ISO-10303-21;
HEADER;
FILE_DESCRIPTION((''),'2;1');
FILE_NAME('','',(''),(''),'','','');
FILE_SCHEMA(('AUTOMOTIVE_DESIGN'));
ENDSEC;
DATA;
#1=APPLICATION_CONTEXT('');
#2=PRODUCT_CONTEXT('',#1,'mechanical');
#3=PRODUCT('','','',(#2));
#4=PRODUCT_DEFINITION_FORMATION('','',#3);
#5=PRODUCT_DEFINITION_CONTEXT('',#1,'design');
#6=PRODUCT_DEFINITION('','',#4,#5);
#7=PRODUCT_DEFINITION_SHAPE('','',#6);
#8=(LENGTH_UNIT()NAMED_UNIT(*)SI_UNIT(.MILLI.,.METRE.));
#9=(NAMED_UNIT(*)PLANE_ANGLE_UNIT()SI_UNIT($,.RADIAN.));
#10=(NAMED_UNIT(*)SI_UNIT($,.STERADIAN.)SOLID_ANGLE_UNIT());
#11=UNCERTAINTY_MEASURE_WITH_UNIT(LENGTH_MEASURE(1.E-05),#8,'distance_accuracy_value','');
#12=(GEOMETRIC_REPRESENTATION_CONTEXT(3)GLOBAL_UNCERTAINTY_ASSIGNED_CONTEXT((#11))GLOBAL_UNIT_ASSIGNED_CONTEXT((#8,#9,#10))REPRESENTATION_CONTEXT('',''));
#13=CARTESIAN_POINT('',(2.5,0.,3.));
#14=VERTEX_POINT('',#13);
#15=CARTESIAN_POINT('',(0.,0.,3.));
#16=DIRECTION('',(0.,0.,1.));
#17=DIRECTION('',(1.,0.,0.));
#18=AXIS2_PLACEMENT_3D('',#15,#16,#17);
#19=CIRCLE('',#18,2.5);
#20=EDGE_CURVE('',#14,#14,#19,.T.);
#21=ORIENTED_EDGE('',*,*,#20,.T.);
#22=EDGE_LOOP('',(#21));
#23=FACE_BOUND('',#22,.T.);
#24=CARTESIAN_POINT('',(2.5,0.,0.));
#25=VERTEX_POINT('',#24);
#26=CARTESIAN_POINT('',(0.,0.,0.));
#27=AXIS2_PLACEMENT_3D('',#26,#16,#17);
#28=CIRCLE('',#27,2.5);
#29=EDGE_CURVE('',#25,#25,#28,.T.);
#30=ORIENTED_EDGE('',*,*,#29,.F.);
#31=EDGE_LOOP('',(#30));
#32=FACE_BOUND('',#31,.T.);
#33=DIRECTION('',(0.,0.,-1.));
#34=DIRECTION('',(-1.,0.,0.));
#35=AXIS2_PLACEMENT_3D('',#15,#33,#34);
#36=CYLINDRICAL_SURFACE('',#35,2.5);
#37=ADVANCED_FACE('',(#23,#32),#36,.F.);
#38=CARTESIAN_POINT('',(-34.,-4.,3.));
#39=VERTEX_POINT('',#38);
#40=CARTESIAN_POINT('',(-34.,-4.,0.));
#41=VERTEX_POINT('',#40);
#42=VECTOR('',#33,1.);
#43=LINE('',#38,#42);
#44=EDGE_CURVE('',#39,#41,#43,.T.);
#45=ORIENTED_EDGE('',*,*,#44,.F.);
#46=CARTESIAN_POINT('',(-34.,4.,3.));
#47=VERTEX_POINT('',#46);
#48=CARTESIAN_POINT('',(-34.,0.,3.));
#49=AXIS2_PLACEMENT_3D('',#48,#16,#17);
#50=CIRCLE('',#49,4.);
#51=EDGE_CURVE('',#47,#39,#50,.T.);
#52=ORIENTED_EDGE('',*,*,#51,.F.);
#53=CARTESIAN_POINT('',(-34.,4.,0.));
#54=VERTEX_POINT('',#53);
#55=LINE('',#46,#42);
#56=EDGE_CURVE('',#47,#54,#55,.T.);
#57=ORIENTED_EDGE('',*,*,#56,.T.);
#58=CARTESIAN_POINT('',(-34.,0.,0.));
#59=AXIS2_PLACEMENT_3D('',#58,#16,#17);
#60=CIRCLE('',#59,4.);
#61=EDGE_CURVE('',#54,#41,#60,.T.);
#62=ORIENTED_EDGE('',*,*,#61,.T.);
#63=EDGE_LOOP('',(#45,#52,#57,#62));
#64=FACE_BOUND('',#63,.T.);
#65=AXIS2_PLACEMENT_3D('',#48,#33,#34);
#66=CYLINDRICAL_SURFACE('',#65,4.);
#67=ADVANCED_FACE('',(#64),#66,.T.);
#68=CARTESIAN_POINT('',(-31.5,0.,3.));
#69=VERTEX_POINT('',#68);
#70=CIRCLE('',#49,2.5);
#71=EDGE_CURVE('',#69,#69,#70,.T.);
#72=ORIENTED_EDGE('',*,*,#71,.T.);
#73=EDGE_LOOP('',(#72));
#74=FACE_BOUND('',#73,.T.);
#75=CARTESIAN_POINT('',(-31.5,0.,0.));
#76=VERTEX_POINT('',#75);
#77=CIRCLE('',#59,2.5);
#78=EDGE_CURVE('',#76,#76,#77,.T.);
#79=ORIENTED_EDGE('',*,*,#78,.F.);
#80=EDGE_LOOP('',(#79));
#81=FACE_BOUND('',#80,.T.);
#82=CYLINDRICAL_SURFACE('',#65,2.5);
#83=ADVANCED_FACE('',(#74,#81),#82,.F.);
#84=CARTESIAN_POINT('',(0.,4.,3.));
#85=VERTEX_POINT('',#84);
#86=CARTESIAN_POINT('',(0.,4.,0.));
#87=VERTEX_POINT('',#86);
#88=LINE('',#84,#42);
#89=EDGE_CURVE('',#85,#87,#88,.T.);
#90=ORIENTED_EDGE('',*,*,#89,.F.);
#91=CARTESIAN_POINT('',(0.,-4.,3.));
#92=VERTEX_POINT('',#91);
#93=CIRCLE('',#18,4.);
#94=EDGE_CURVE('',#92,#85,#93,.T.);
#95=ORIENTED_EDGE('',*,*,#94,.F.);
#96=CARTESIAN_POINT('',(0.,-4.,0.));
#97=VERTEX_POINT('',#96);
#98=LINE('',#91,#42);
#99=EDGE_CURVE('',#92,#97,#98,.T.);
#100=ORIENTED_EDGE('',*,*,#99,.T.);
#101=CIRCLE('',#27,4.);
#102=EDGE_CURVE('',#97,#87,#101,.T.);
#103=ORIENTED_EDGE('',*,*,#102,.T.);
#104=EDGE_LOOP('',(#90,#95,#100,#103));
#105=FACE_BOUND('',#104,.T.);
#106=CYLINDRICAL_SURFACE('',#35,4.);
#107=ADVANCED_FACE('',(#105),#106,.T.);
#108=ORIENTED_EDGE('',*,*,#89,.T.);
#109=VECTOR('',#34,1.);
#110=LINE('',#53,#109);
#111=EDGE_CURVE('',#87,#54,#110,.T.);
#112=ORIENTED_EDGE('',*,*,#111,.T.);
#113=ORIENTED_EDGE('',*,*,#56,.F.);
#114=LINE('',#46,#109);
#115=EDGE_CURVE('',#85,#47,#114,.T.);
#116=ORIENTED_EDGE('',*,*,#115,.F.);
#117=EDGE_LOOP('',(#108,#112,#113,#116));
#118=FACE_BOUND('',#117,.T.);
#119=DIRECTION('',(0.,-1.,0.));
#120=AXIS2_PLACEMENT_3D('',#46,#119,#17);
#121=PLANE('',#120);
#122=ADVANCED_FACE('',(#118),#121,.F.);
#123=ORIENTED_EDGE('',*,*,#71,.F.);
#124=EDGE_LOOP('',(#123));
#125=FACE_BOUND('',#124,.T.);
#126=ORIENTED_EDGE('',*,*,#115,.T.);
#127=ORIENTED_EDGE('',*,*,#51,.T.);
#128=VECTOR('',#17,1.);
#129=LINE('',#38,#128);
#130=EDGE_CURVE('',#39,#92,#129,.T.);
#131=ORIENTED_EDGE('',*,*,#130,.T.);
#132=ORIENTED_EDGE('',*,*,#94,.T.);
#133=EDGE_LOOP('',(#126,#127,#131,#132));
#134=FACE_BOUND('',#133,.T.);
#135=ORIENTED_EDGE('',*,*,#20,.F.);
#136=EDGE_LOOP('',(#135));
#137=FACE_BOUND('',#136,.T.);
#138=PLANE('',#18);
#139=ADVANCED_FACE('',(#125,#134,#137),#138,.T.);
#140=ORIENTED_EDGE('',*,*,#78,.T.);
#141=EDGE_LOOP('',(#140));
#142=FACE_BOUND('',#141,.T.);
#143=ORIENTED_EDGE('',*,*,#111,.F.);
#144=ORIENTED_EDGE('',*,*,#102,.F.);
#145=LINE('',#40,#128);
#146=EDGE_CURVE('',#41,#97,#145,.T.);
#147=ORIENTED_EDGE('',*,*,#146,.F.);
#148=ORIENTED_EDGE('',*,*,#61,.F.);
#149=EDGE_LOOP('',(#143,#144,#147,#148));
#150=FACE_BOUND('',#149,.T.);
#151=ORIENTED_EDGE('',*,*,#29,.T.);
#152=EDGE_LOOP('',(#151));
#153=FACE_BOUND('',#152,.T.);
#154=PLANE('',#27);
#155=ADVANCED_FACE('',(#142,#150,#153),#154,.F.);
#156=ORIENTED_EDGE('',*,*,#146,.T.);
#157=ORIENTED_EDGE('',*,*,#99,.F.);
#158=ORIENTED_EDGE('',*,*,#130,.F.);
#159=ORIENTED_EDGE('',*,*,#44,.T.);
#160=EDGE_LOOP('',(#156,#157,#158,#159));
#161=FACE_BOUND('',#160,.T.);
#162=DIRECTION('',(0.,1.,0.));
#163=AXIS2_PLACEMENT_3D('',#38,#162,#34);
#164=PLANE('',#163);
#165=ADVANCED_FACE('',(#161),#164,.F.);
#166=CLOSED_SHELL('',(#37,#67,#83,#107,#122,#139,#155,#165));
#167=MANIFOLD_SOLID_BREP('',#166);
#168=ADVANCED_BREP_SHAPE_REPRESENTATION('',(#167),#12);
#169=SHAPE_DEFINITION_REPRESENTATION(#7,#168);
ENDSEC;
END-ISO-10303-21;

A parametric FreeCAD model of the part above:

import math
import FreeCAD as App
import Part
import Sketcher

V = App.Vector
Q = App.Units.Quantity

doc = App.newDocument("Part")
body = doc.addObject("PartDesign::Body", "Body")

# Sketch on XY plane
sketch1 = body.newObject("Sketcher::SketchObject", "Sketch")
sketch1.AttachmentSupport = (doc.getObject("XY_Plane"), [""])
sketch1.MapMode = "FlatFace"
sketch1.addGeometry([
    Part.LineSegment(V(0, 4, 0), V(-34, 4, 0)),  # 0
    Part.ArcOfCircle(Part.Circle(V(-34, 0, 0), V(0, 0, 1), 4), math.radians(90), math.radians(270)),  # 1
    Part.LineSegment(V(-34, -4, 0), V(0, -4, 0)),  # 2
    Part.ArcOfCircle(Part.Circle(V(0, 0, 0), V(0, 0, 1), 4), math.radians(-90), math.radians(90)),  # 3
    Part.Circle(V(0, 0, 0), V(0, 0, 1), 2.5),  # 4
    Part.Circle(V(-34, 0, 0), V(0, 0, 1), 2.5),  # 5
], False)
sketch1.addConstraint([
    Sketcher.Constraint("Tangent", 0, 2, 1, 1),
    Sketcher.Constraint("Tangent", 1, 2, 2, 1),
    Sketcher.Constraint("Tangent", 2, 2, 3, 1),
    Sketcher.Constraint("Tangent", 3, 2, 0, 1),
    Sketcher.Constraint("Horizontal", 0),
    Sketcher.Constraint("Horizontal", 2),
    Sketcher.Constraint("Coincident", 3, 3, -1, 1),
    Sketcher.Constraint("Coincident", 4, 3, -1, 1),
    Sketcher.Constraint("Coincident", 5, 3, 1, 3),
    Sketcher.Constraint("Equal", 4, 5),
    Sketcher.Constraint("Diameter", 4, Q("5 mm")),
    Sketcher.Constraint("Radius", 1, Q("4 mm")),
    Sketcher.Constraint("DistanceX", 0, 2, 0, 1, Q("34 mm")),
])
pad1 = body.newObject("PartDesign::Pad", "Pad")
pad1.Profile = sketch1
pad1.Length = 3

doc.recompute()
